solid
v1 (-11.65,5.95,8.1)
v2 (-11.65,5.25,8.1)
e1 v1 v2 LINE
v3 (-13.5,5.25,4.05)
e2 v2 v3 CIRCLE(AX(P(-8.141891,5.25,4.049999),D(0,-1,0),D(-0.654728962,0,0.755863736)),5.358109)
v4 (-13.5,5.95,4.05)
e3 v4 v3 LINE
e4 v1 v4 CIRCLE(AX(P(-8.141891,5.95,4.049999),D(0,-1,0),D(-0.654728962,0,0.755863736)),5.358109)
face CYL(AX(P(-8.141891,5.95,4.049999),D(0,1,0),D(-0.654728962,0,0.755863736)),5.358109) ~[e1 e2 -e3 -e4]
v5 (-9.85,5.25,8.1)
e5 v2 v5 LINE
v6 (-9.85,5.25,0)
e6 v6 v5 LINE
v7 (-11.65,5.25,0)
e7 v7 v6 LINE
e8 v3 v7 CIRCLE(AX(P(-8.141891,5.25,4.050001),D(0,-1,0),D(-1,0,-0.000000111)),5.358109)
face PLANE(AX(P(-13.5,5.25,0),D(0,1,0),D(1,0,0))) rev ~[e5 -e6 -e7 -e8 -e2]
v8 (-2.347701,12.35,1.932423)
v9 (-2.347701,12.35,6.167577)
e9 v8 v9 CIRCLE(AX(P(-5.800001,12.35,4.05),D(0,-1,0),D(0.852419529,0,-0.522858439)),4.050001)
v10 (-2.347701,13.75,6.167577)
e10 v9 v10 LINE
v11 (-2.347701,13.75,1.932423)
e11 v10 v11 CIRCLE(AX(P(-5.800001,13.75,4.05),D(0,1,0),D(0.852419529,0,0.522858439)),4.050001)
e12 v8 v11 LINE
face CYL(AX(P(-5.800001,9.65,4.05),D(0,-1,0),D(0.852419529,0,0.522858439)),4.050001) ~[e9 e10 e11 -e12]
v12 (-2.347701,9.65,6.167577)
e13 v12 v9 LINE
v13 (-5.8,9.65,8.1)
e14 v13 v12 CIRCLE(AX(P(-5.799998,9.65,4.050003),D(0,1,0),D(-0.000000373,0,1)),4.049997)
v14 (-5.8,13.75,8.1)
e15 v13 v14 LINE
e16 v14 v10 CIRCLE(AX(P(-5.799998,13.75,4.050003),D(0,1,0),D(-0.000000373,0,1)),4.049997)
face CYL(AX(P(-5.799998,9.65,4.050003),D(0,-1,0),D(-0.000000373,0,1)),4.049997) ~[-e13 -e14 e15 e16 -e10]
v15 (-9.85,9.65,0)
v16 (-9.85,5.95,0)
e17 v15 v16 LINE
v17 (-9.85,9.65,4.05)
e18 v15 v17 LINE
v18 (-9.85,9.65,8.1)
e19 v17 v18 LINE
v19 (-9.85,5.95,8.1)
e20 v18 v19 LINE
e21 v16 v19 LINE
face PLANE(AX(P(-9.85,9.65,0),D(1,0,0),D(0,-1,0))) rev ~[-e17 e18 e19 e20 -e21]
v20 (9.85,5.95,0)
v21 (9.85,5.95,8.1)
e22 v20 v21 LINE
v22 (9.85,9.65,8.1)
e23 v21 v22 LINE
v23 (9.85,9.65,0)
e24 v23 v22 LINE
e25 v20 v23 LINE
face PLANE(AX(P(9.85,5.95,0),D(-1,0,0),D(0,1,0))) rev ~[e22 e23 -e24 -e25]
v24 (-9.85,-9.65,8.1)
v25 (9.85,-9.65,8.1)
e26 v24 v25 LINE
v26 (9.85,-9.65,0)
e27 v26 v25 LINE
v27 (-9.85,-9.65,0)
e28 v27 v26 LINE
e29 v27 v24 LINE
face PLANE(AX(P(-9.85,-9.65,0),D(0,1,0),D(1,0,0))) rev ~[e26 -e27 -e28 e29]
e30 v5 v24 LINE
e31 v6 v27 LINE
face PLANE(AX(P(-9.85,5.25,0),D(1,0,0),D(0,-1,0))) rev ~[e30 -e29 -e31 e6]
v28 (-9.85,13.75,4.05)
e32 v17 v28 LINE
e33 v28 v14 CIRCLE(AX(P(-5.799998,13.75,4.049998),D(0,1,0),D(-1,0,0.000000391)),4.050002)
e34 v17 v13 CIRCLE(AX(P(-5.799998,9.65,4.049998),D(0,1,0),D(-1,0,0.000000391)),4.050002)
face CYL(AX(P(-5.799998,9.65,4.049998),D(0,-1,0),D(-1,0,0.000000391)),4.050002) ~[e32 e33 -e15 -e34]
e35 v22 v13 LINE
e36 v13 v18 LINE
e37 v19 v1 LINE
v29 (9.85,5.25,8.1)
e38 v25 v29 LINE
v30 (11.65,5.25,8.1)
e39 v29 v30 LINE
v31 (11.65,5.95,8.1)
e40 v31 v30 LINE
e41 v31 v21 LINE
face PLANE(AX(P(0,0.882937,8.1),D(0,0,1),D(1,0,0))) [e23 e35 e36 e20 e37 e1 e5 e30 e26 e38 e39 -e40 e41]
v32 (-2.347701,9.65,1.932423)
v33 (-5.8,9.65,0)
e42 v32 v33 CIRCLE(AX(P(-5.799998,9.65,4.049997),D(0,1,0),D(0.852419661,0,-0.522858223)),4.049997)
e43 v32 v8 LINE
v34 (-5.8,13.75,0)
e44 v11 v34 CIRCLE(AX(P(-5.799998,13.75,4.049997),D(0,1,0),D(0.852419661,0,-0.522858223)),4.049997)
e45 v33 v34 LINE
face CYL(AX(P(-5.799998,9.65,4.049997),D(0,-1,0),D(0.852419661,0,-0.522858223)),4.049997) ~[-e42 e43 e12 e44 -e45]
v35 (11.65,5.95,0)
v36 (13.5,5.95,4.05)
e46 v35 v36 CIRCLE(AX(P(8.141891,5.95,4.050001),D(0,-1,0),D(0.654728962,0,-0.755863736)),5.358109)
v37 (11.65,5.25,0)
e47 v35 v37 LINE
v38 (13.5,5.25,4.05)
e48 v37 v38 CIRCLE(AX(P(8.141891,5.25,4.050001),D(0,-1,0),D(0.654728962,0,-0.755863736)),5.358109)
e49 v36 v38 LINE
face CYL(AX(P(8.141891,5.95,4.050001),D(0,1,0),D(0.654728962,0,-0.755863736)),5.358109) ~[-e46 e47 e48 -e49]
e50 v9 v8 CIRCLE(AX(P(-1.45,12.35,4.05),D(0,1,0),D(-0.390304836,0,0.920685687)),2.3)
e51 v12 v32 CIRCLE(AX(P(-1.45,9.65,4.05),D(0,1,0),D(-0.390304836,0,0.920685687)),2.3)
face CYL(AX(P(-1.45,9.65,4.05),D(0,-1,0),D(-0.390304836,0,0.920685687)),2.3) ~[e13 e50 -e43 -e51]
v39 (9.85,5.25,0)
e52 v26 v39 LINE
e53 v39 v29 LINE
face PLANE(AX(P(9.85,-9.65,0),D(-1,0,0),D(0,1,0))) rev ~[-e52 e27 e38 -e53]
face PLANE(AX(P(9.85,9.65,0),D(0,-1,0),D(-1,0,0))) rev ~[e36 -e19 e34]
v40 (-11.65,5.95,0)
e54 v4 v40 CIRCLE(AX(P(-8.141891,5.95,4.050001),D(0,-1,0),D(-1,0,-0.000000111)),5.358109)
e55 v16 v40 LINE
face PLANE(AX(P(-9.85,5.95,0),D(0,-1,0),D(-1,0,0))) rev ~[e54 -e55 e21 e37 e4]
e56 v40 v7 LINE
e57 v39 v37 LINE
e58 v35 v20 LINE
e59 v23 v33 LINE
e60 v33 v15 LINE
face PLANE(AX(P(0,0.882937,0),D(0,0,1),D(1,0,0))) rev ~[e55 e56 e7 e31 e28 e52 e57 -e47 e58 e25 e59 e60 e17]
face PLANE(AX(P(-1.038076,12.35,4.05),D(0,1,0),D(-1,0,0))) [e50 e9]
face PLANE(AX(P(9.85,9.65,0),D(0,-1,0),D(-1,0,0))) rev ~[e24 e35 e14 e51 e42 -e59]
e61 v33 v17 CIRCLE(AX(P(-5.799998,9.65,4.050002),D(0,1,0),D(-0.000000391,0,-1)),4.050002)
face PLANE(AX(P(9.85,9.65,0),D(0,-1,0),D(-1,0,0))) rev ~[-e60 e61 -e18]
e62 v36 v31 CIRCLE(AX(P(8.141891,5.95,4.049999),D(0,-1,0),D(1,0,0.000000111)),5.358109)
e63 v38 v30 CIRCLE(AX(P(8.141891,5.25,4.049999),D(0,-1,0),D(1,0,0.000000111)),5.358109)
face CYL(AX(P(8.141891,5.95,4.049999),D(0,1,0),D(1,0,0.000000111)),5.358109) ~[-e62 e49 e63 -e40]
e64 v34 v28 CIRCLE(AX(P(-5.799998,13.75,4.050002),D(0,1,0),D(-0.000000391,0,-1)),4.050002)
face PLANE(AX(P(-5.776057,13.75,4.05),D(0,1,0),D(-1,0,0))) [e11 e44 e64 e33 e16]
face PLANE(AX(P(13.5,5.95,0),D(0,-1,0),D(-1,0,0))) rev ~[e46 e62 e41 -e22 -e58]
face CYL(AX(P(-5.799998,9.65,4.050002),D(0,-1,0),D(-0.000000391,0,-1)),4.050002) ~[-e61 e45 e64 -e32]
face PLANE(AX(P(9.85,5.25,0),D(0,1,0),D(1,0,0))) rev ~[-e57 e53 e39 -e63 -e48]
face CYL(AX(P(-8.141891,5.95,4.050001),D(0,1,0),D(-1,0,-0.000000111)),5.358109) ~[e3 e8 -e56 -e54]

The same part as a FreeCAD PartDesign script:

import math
import FreeCAD as App
import Part
import Sketcher

V = App.Vector
Q = App.Units.Quantity


def add_polygon(sketch, points):
    """Adds a closed chain of lines whose ends are joined by coincident constraints."""
    first, n = sketch.GeometryCount, len(points)
    for a, b in zip(points, points[1:] + points[:1]):
        sketch.addGeometry(Part.LineSegment(App.Vector(*a, 0), App.Vector(*b, 0)), False)
    for i in range(n):
        sketch.addConstraint(Sketcher.Constraint("Coincident", first + i, 2, first + (i + 1) % n, 1))

doc = App.newDocument("Part")
body = doc.addObject("PartDesign::Body", "Body")

sketch1 = doc.addObject("Sketcher::SketchObject", "Sketch")
body.addObject(sketch1)
sketch1.AttachmentSupport = (doc.XY_Plane, [""])
sketch1.MapMode = "FlatFace"
add_polygon(sketch1, [(-9.85, -9.65), (9.85, -9.65), (9.85, 5.25), (13.5, 5.25), (13.5, 5.95), (9.85, 5.95), (9.85, 9.65), (-9.85, 9.65), (-9.85, 5.95), (-13.5, 5.95), (-13.5, 5.25), (-9.85, 5.25)])
sketch1.addConstraint([
    Sketcher.Constraint("Horizontal", 0),
    Sketcher.Constraint("Vertical", 1),
    Sketcher.Constraint("Horizontal", 2),
    Sketcher.Constraint("Vertical", 3),
    Sketcher.Constraint("Horizontal", 4),
    Sketcher.Constraint("Vertical", 5),
    Sketcher.Constraint("Horizontal", 6),
    Sketcher.Constraint("Vertical", 7),
    Sketcher.Constraint("Horizontal", 8),
    Sketcher.Constraint("Vertical", 9),
    Sketcher.Constraint("Horizontal", 10),
    Sketcher.Constraint("Vertical", 11),
    Sketcher.Constraint("Symmetric", 0, 2, 6, 2, -1, 1),
    Sketcher.Constraint("Symmetric", 4, 2, 7, 2, -2),
    Sketcher.Constraint("Symmetric", 2, 2, 9, 2, -2),
    Sketcher.Constraint("Vertical", 7, 2, 10, 2),
    Sketcher.Constraint("DistanceX", 0, 1, 0, 2, Q("19.7 mm")),
    Sketcher.Constraint("DistanceY", 1, 1, 1, 2, Q("14.9 mm")),
    Sketcher.Constraint("DistanceY", 3, 1, 3, 2, Q("0.7 mm")),
    Sketcher.Constraint("DistanceY", 5, 1, 5, 2, Q("3.7 mm")),
    Sketcher.Constraint("DistanceX", 2, 1, 2, 2, Q("3.65 mm")),
])
pad1 = doc.addObject("PartDesign::Pad", "Pad")
body.addObject(pad1)
pad1.Profile = sketch1
pad1.Length = 8.1

sketch2 = doc.addObject("Sketcher::SketchObject", "Sketch001")
body.addObject(sketch2)
sketch2.AttachmentSupport = (doc.XZ_Plane, [""])
sketch2.MapMode = "FlatFace"
sketch2.AttachmentOffset = App.Placement(V(0, 0, -5.95), App.Rotation())
sketch2.addGeometry([
    Part.ArcOfCircle(Part.Circle(V(8.141891, 4.050001, 0), V(0, 0, 1), 5.358109), math.radians(-49.100898), math.radians(-0.000006)),
    Part.LineSegment(V(13.5, 4.05, 0), V(13.5, 0, 0)),
    Part.LineSegment(V(13.5, 0, 0), V(11.65, 0, 0)),
    Part.ArcOfCircle(Part.Circle(V(8.141891, 4.049999, 0), V(0, 0, 1), 5.358109), math.radians(0.000006), math.radians(49.100898)),
    Part.LineSegment(V(11.65, 8.1, 0), V(13.5, 8.1, 0)),
    Part.LineSegment(V(13.5, 8.1, 0), V(13.5, 4.05, 0)),
    Part.LineSegment(V(-13.5, 8.1, 0), V(-11.65, 8.1, 0)),
    Part.ArcOfCircle(Part.Circle(V(-8.141891, 4.049999, 0), V(0, 0, 1), 5.358109), math.radians(130.899102), math.radians(179.999994)),
    Part.LineSegment(V(-13.5, 4.05, 0), V(-13.5, 8.1, 0)),
    Part.LineSegment(V(-13.5, 0, 0), V(-13.5, 4.05, 0)),
    Part.ArcOfCircle(Part.Circle(V(-8.141891, 4.050001, 0), V(0, 0, 1), 5.358109), math.radians(-179.999994), math.radians(-130.899102)),
    Part.LineSegment(V(-11.65, 0, 0), V(-13.5, 0, 0)),
], False)
sketch2.addConstraint([
    Sketcher.Constraint("Tangent", 0, 2, 1, 1),
    Sketcher.Constraint("Coincident", 1, 2, 2, 1),
    Sketcher.Constraint("Coincident", 2, 2, 0, 1),
    Sketcher.Constraint("Coincident", 3, 2, 4, 1),
    Sketcher.Constraint("Coincident", 4, 2, 5, 1),
    Sketcher.Constraint("Tangent", 5, 2, 3, 1),
    Sketcher.Constraint("Coincident", 6, 2, 7, 1),
    Sketcher.Constraint("Tangent", 7, 2, 8, 1),
    Sketcher.Constraint("Coincident", 8, 2, 6, 1),
    Sketcher.Constraint("Tangent", 9, 2, 10, 1),
    Sketcher.Constraint("Coincident", 10, 2, 11, 1),
    Sketcher.Constraint("Coincident", 11, 2, 9, 1),
    Sketcher.Constraint("Vertical", 1),
    Sketcher.Constraint("Horizontal", 2),
    Sketcher.Constraint("Horizontal", 4),
    Sketcher.Constraint("Vertical", 5),
    Sketcher.Constraint("Horizontal", 6),
    Sketcher.Constraint("Vertical", 8),
    Sketcher.Constraint("Vertical", 9),
    Sketcher.Constraint("Horizontal", 11),
    Sketcher.Constraint("Coincident", 3, 3, 0, 3),
    Sketcher.Constraint("Coincident", 10, 3, 7, 3),
    Sketcher.Constraint("Equal", 0, 3),
    Sketcher.Constraint("Equal", 3, 7),
    Sketcher.Constraint("Equal", 7, 10),
    Sketcher.Constraint("Symmetric", 2, 2, 10, 2, -1, 1),
    Sketcher.Constraint("Symmetric", 0, 3, 7, 3, -2),
    Sketcher.Constraint("Horizontal", 4, 2, 6, 2),
    Sketcher.Constraint("Vertical", 2, 2, 3, 2),
    Sketcher.Constraint("DistanceX", 2, 2, 2, 1, Q("1.85 mm")),
    Sketcher.Constraint("DistanceY", 1, 2, 1, 1, Q("4.05 mm")),
    Sketcher.Constraint("DistanceX", -1, 1, 0, 2, Q("13.5 mm")),
])
pocket1 = doc.addObject("PartDesign::Pocket", "Pocket")
body.addObject(pocket1)
pocket1.Profile = sketch2
pocket1.Type = "ThroughAll"
pocket1.Reversed = True

sketch3 = doc.addObject("Sketcher::SketchObject", "Sketch002")
body.addObject(sketch3)
sketch3.AttachmentSupport = (doc.XZ_Plane, [""])
sketch3.MapMode = "FlatFace"
sketch3.AttachmentOffset = App.Placement(V(0, 0, -9.65), App.Rotation())
sketch3.addGeometry([
    Part.ArcOfCircle(Part.Circle(V(-5.799998, 4.050003, 0), V(0, 0, 1), 4.049997), math.radians(31.524171), math.radians(90.000021)),
    Part.ArcOfCircle(Part.Circle(V(-5.800001, 4.05, 0), V(0, 0, 1), 4.050001), math.radians(-31.524186), math.radians(31.524186)),
    Part.ArcOfCircle(Part.Circle(V(-5.799998, 4.049997, 0), V(0, 0, 1), 4.049997), math.radians(-90.000021), math.radians(-31.524171)),
    Part.ArcOfCircle(Part.Circle(V(-5.799998, 4.050002, 0), V(0, 0, 1), 4.050002), math.radians(-179.999978), math.radians(-90.000022)),
    Part.ArcOfCircle(Part.Circle(V(-5.799998, 4.049998, 0), V(0, 0, 1), 4.050002), math.radians(90.000022), math.radians(179.999978)),
], False)
sketch3.addConstraint([
    Sketcher.Constraint("Tangent", 0, 1, 1, 2),
    Sketcher.Constraint("Tangent", 1, 1, 2, 2),
    Sketcher.Constraint("Tangent", 2, 1, 3, 2),
    Sketcher.Constraint("Tangent", 3, 1, 4, 2),
    Sketcher.Constraint("Tangent", 4, 1, 0, 2),
    Sketcher.Constraint("Coincident", 2, 3, 0, 3),
    Sketcher.Constraint("PointOnObject", 2, 1, -1),
    Sketcher.Constraint("Horizontal", 4, 3, 3, 1),
    Sketcher.Constraint("Vertical", 0, 1, 1, 1),
    Sketcher.Constraint("Vertical", 4, 3, 2, 1),
    Sketcher.Constraint("Vertical", 2, 1, 4, 1),
    Sketcher.Constraint("Radius", 1, Q("4.050001 mm")),
    Sketcher.Constraint("DistanceX", 0, 3, -1, 1, Q("5.799998 mm")),
    Sketcher.Constraint("DistanceX", 0, 1, -1, 1, Q("2.347701 mm")),
])
pad2 = doc.addObject("PartDesign::Pad", "Pad001")
body.addObject(pad2)
pad2.Profile = sketch3
pad2.Length = 4.1
pad2.Reversed = True

sketch4 = doc.addObject("Sketcher::SketchObject", "Sketch003")
body.addObject(sketch4)
sketch4.AttachmentSupport = (doc.XZ_Plane, [""])
sketch4.MapMode = "FlatFace"
sketch4.AttachmentOffset = App.Placement(V(0, 0, -9.65), App.Rotation())
sketch4.addGeometry([
    Part.ArcOfCircle(Part.Circle(V(-5.800001, 4.05, 0), V(0, 0, 1), 4.050001), math.radians(-31.524186), math.radians(31.524186)),
    Part.ArcOfCircle(Part.Circle(V(-1.45, 4.05, 0), V(0, 0, 1), 2.3), math.radians(-112.973469), math.radians(112.973469)),
], False)
sketch4.addConstraint([
    Sketcher.Constraint("Coincident", 0, 1, 1, 1),
    Sketcher.Constraint("Coincident", 1, 2, 0, 2),
    Sketcher.Constraint("Horizontal", 0, 3, 1, 3),
    Sketcher.Constraint("Radius", 1, Q("2.3 mm")),
    Sketcher.Constraint("Radius", 0, Q("4.050001 mm")),
    Sketcher.Constraint("DistanceX", 0, 3, -1, 1, Q("5.800001 mm")),
    Sketcher.Constraint("DistanceY", -1, 1, 0, 3, Q("4.05 mm")),
    Sketcher.Constraint("DistanceX", 1, 3, -1, 1, Q("1.45 mm")),
])
pad3 = doc.addObject("PartDesign::Pad", "Pad002")
body.addObject(pad3)
pad3.Profile = sketch4
pad3.Length = 2.7
pad3.Reversed = True

doc.recompute()
